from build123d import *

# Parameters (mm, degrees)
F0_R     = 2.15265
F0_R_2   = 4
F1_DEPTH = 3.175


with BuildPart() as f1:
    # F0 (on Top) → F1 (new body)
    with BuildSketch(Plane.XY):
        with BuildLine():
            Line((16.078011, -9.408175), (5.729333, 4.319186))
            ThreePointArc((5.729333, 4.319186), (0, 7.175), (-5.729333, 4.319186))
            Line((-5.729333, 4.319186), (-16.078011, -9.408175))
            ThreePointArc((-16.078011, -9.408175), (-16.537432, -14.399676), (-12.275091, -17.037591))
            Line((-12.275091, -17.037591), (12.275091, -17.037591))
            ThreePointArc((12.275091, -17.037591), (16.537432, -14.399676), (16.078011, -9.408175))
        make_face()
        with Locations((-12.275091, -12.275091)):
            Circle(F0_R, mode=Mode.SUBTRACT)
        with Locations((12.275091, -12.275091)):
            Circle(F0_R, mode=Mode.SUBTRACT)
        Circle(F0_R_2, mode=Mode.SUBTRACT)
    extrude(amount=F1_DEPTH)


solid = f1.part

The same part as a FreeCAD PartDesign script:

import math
import FreeCAD as App
import Part
import Sketcher
from FreeCAD import Vector
Q = App.Units.Quantity

doc = App.newDocument("Part")
body = doc.addObject("PartDesign::Body", "Body")

sketch1 = body.newObject("Sketcher::SketchObject", "Sketch")
sketch1.AttachmentSupport = (doc.getObject("XY_Plane"), [""])
sketch1.MapMode = "FlatFace"
sketch1.addGeometry(Part.LineSegment(Vector(16.1, -9.4, 0), Vector(5.7, 4.3, 0)), False)
sketch1.addGeometry(Part.ArcOfCircle(Part.Circle(Vector(0, 0, 0), Vector(0, 0, 1), 7.2), math.radians(37), math.radians(143)), False)
sketch1.addGeometry(Part.LineSegment(Vector(-5.7, 4.3, 0), Vector(-16.1, -9.4, 0)), False)
sketch1.addGeometry(Part.ArcOfCircle(Part.Circle(Vector(-12.3, -12.3, 0), Vector(0, 0, 1), 4.8), math.radians(143), math.radians(270)), False)
sketch1.addGeometry(Part.LineSegment(Vector(-12.3, -17, 0), Vector(12.3, -17, 0)), False)
sketch1.addGeometry(Part.ArcOfCircle(Part.Circle(Vector(12.3, -12.3, 0), Vector(0, 0, 1), 4.8), math.radians(-90), math.radians(37)), False)
sketch1.addGeometry(Part.Circle(Vector(-12.3, -12.3, 0), Vector(0, 0, 1), 2.2), False)
sketch1.addGeometry(Part.Circle(Vector(12.3, -12.3, 0), Vector(0, 0, 1), 2.2), False)
sketch1.addGeometry(Part.Circle(Vector(0, 0, 0), Vector(0, 0, 1), 4), False)
sketch1.addConstraint(Sketcher.Constraint("Tangent", 0, 2, 1, 1))
sketch1.addConstraint(Sketcher.Constraint("Tangent", 1, 2, 2, 1))
sketch1.addConstraint(Sketcher.Constraint("Tangent", 2, 2, 3, 1))
sketch1.addConstraint(Sketcher.Constraint("Tangent", 3, 2, 4, 1))
sketch1.addConstraint(Sketcher.Constraint("Tangent", 4, 2, 5, 1))
sketch1.addConstraint(Sketcher.Constraint("Tangent", 5, 2, 0, 1))
sketch1.addConstraint(Sketcher.Constraint("Horizontal", 4))
sketch1.addConstraint(Sketcher.Constraint("Coincident", 1, 3, -1, 1))
sketch1.addConstraint(Sketcher.Constraint("Coincident", 8, 3, -1, 1))
sketch1.addConstraint(Sketcher.Constraint("Coincident", 6, 3, 3, 3))
sketch1.addConstraint(Sketcher.Constraint("Coincident", 7, 3, 5, 3))
sketch1.addConstraint(Sketcher.Constraint("Equal", 3, 5))
sketch1.addConstraint(Sketcher.Constraint("Equal", 6, 7))
sketch1.addConstraint(Sketcher.Constraint("Horizontal", 0, 2, 1, 2))
sketch1.addConstraint(Sketcher.Constraint("Radius", 3, Q("0.1875 in")))
sketch1.addConstraint(Sketcher.Constraint("Diameter", 6, Q("0.1695 in")))
sketch1.addConstraint(Sketcher.Constraint("Diameter", 8, 8.0))
sketch1.addConstraint(Sketcher.Constraint("Radius", 1, 7.175))
sketch1.addConstraint(Sketcher.Constraint("DistanceX", 4, 1, 4, 2, 24.550182))
sketch1.addConstraint(Sketcher.Constraint("Distance", 0, 17.191148))
pad1 = body.newObject("PartDesign::Pad", "Pad")
pad1.Profile = sketch1
pad1.Length = Q("0.125 in")

doc.recompute()
